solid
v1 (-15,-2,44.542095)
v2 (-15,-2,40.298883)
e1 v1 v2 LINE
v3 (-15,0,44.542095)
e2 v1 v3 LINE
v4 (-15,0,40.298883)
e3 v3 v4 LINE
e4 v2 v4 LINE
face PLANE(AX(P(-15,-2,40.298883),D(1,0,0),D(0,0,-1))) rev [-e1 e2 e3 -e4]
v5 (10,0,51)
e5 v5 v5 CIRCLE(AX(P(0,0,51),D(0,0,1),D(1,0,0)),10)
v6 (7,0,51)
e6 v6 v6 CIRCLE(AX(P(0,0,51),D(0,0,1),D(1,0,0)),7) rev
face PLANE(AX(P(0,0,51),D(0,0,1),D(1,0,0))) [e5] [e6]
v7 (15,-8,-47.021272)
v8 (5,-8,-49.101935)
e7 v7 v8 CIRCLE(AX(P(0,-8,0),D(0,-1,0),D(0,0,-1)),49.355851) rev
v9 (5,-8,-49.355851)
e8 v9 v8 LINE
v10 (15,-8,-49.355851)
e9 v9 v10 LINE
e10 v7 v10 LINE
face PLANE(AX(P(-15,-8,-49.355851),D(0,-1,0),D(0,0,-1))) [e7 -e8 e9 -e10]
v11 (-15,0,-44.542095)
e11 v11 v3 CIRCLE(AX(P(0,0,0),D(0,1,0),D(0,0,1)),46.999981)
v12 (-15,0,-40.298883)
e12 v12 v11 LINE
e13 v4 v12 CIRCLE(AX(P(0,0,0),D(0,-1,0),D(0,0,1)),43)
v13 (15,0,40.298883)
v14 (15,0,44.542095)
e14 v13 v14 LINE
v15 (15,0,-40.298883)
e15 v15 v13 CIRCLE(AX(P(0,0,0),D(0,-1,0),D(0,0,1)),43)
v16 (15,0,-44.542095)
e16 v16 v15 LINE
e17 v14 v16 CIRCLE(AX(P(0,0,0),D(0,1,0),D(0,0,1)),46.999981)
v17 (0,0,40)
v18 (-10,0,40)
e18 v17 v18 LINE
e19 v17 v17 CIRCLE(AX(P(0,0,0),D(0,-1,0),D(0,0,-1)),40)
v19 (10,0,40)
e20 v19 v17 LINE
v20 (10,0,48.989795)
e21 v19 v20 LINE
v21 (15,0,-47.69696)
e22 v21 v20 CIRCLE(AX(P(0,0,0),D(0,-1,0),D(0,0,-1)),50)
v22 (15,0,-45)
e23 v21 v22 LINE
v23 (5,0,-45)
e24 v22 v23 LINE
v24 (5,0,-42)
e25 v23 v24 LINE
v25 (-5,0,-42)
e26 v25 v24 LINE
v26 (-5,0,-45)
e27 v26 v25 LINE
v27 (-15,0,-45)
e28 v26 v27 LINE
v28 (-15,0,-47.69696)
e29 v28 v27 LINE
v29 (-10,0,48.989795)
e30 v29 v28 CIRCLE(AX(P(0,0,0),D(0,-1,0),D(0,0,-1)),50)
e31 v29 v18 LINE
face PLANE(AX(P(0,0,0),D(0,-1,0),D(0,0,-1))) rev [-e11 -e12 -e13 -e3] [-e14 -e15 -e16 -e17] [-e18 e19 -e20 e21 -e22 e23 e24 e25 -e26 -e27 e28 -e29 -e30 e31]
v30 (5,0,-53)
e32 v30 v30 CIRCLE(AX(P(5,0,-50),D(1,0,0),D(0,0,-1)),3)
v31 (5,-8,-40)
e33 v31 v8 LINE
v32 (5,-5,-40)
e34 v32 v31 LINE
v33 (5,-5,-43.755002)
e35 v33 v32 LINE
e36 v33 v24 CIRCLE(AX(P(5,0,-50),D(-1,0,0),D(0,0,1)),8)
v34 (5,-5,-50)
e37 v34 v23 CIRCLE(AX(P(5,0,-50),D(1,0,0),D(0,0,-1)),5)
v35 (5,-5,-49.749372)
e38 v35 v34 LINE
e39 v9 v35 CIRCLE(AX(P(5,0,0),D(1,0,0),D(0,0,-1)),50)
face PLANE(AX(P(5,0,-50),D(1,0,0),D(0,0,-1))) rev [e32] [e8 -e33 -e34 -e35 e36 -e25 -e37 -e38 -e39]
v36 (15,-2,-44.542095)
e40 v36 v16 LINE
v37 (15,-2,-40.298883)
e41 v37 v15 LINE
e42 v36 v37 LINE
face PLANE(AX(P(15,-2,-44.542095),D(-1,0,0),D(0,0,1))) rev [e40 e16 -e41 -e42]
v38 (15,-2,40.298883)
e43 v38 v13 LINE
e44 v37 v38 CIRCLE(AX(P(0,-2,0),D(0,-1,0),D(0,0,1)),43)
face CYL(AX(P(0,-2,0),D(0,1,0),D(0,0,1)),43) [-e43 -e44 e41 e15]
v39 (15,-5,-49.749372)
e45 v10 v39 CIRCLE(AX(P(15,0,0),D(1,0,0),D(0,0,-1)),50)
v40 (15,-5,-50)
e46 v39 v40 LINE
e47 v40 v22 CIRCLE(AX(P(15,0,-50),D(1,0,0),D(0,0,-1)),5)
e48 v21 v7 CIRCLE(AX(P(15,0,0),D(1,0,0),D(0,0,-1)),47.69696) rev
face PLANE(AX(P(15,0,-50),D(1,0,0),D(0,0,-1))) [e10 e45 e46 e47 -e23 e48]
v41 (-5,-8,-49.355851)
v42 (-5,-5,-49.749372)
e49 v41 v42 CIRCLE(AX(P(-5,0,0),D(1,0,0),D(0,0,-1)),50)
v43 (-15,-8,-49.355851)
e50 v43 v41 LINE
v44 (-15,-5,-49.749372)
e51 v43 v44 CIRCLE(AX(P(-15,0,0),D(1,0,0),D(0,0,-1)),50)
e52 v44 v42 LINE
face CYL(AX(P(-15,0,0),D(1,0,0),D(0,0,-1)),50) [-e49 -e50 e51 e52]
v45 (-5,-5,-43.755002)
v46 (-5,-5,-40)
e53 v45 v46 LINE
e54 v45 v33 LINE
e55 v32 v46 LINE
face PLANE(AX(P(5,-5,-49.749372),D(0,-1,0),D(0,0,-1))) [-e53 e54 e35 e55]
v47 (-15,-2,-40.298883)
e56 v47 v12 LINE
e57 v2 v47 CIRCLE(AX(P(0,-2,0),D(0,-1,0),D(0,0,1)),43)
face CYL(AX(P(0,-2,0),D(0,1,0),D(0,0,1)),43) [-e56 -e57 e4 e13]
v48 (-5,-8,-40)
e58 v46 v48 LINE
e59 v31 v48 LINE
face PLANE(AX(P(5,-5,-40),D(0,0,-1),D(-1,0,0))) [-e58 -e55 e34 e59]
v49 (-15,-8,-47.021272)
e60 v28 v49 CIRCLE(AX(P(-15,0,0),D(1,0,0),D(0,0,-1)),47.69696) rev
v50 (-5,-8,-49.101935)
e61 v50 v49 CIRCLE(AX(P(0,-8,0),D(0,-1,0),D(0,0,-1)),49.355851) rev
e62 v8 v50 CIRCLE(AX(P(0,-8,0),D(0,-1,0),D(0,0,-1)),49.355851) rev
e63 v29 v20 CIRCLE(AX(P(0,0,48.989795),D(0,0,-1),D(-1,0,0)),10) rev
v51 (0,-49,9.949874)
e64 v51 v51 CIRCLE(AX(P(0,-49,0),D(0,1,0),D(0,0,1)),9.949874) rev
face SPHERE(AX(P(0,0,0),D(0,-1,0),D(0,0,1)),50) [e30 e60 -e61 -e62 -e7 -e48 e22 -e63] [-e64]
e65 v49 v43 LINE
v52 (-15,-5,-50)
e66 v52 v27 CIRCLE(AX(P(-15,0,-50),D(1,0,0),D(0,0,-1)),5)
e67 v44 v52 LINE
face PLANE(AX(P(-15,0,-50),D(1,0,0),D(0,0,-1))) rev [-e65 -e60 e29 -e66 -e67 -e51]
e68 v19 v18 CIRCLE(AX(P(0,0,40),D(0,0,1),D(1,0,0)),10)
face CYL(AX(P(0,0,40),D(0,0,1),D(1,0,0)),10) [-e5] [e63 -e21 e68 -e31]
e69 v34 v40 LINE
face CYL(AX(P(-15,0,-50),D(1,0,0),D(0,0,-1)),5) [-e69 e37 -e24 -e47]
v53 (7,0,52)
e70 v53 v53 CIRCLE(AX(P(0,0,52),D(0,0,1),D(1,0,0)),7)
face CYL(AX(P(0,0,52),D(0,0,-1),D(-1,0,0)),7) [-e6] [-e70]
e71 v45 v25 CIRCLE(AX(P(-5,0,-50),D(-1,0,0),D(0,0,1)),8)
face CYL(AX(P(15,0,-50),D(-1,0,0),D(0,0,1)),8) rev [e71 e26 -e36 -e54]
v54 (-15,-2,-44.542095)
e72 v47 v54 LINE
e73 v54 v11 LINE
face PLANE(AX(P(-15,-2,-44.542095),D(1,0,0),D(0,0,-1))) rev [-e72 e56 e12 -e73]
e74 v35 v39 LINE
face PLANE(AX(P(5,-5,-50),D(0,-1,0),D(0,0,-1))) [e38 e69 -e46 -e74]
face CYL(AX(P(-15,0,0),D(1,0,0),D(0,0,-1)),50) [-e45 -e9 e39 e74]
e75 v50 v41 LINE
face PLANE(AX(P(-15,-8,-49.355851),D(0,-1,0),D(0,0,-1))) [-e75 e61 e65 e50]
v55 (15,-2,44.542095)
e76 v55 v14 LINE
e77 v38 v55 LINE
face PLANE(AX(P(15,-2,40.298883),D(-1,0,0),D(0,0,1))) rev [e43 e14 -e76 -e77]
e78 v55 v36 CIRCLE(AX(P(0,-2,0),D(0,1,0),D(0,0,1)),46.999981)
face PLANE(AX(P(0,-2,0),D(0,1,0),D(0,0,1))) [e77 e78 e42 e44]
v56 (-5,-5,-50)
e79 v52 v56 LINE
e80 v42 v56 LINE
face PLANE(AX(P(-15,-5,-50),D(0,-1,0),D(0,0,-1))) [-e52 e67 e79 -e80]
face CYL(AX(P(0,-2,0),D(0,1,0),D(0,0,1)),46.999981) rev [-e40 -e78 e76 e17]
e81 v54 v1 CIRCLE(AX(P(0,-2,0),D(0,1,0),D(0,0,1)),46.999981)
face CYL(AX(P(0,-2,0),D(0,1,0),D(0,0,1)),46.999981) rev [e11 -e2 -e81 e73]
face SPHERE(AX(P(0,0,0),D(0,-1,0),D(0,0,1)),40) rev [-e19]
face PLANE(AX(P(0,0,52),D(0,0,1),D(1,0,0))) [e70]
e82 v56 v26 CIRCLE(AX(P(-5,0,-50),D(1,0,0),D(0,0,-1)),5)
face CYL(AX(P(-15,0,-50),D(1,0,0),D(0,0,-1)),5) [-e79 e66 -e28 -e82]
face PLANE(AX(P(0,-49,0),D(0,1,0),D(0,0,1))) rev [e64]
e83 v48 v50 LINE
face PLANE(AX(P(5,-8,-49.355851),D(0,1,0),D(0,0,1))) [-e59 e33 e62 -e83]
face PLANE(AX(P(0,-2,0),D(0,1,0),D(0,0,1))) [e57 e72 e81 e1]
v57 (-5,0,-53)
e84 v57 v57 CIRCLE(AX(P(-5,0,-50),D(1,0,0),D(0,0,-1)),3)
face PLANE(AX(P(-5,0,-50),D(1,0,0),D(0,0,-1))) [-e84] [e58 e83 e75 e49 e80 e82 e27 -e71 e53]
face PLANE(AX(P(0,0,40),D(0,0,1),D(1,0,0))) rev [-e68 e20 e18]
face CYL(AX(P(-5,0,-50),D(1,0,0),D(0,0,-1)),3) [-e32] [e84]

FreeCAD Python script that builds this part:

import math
import FreeCAD as App
import Part
import Sketcher
Q = App.Units.Quantity


def add_polygon(sketch, points):
    """Adds a closed chain of lines whose ends are joined by coincident constraints."""
    first, n = sketch.GeometryCount, len(points)
    for a, b in zip(points, points[1:] + points[:1]):
        sketch.addGeometry(Part.LineSegment(App.Vector(*a, 0), App.Vector(*b, 0)), False)
    for i in range(n):
        sketch.addConstraint(Sketcher.Constraint("Coincident", first + i, 2, first + (i + 1) % n, 1))

doc = App.newDocument("Part")
body = doc.addObject("PartDesign::Body", "Body")

# Sketch on YZ plane
sketch1 = body.newObject("Sketcher::SketchObject", "Sketch")
sketch1.AttachmentSupport = (doc.getObject("YZ_Plane"), [""])
sketch1.MapMode = "FlatFace"
sketch1.addGeometry([
    Part.LineSegment(App.Vector(0, -50, 0), App.Vector(0, -40, 0)),
    Part.ArcOfCircle(Part.Circle(App.Vector(0, 0, 0), App.Vector(0, 0, 1), 40), math.radians(-180), math.radians(-90)),
    Part.LineSegment(App.Vector(-40, 0, 0), App.Vector(-50, 0, 0)),
    Part.ArcOfCircle(Part.Circle(App.Vector(0, 0, 0), App.Vector(0, 0, 1), 50), math.radians(-180), math.radians(-90)),
], False)
sketch1.addConstraint([
    Sketcher.Constraint("Coincident", 0, 2, 1, 2),
    Sketcher.Constraint("Coincident", 1, 1, 2, 1),
    Sketcher.Constraint("Coincident", 2, 2, 3, 1),
    Sketcher.Constraint("Coincident", 3, 2, 0, 1),
    Sketcher.Constraint("Vertical", 0),
    Sketcher.Constraint("Horizontal", 2),
    Sketcher.Constraint("Coincident", 1, 3, -1, 1),
    Sketcher.Constraint("Coincident", 3, 3, -1, 1),
    Sketcher.Constraint("PointOnObject", 0, 2, -2),
    Sketcher.Constraint("PointOnObject", 1, 1, -1),
    Sketcher.Constraint("Radius", 1, Q("40 mm")),
    Sketcher.Constraint("Radius", 3, Q("50 mm")),
])
revolution = body.newObject("PartDesign::Revolution", "Revolution")
revolution.Profile = sketch1
revolution.ReferenceAxis = (sketch1, ["H_Axis"])
revolution.Angle = 360

# Sketch on YZ plane
sketch2 = body.newObject("Sketcher::SketchObject", "Sketch001")
sketch2.AttachmentSupport = (doc.getObject("YZ_Plane"), [""])
sketch2.MapMode = "FlatFace"
sketch2.addGeometry(Part.Circle(App.Vector(0, -50, 0), App.Vector(0, 0, 1), 8), False)
sketch2.addConstraint([
    Sketcher.Constraint("PointOnObject", 0, 3, -2),
    Sketcher.Constraint("Diameter", 0, Q("16 mm")),
    Sketcher.Constraint("DistanceY", 0, 3, -1, 1, Q("50 mm")),
])
pocket1 = body.newObject("PartDesign::Pocket", "Pocket")
pocket1.Profile = sketch2
pocket1.Type = "TwoLengths"
pocket1.Length = 15
pocket1.Length2 = 15
pocket1.Reversed = True

# Sketch on YZ plane
sketch3 = body.newObject("Sketcher::SketchObject", "Sketch002")
sketch3.AttachmentSupport = (doc.getObject("YZ_Plane"), [""])
sketch3.MapMode = "FlatFace"
sketch3.addGeometry(Part.Circle(App.Vector(0, -50, 0), App.Vector(0, 0, 1), 5), False)
sketch3.addConstraint([
    Sketcher.Constraint("PointOnObject", 0, 3, -2),
    Sketcher.Constraint("Diameter", 0, Q("10 mm")),
    Sketcher.Constraint("DistanceY", 0, 3, -1, 1, Q("50 mm")),
])
pad1 = body.newObject("PartDesign::Pad", "Pad")
pad1.Profile = sketch3
pad1.Type = "TwoLengths"
pad1.Length = 15
pad1.Length2 = 15

# Sketch on YZ plane
sketch4 = body.newObject("Sketcher::SketchObject", "Sketch003")
sketch4.AttachmentSupport = (doc.getObject("YZ_Plane"), [""])
sketch4.MapMode = "FlatFace"
sketch4.addGeometry(Part.Circle(App.Vector(0, -50, 0), App.Vector(0, 0, 1), 5), False)
sketch4.addConstraint([
    Sketcher.Constraint("PointOnObject", 0, 3, -2),
    Sketcher.Constraint("Diameter", 0, Q("10 mm")),
    Sketcher.Constraint("DistanceY", 0, 3, -1, 1, Q("50 mm")),
])
pocket2 = body.newObject("PartDesign::Pocket", "Pocket001")
pocket2.Profile = sketch4
pocket2.Type = "TwoLengths"
pocket2.Length = 5
pocket2.Length2 = 5
pocket2.Reversed = True

# Sketch on YZ plane
sketch5 = body.newObject("Sketcher::SketchObject", "Sketch004")
sketch5.AttachmentSupport = (doc.getObject("YZ_Plane"), [""])
sketch5.MapMode = "FlatFace"
sketch5.addGeometry(Part.Circle(App.Vector(0, -50, 0), App.Vector(0, 0, 1), 3), False)
sketch5.addConstraint([
    Sketcher.Constraint("PointOnObject", 0, 3, -2),
    Sketcher.Constraint("Diameter", 0, Q("6 mm")),
    Sketcher.Constraint("DistanceY", 0, 3, -1, 1, Q("50 mm")),
])
pad2 = body.newObject("PartDesign::Pad", "Pad001")
pad2.Profile = sketch5
pad2.Type = "TwoLengths"
pad2.Length = 5
pad2.Length2 = 5

# Sketch on YZ plane
sketch6 = body.newObject("Sketcher::SketchObject", "Sketch005")
sketch6.AttachmentSupport = (doc.getObject("YZ_Plane"), [""])
sketch6.MapMode = "FlatFace"
sketch6.AttachmentOffset = App.Placement(App.Vector(0, 0, 15), App.Rotation())
add_polygon(sketch6, [(0, -40), (-5, -40), (-5, -50), (0, -50)])  # lines 0-3
sketch6.addConstraint([
    Sketcher.Constraint("Horizontal", 0),
    Sketcher.Constraint("Vertical", 1),
    Sketcher.Constraint("Horizontal", 2),
    Sketcher.Constraint("Vertical", 3),
    Sketcher.Constraint("PointOnObject", 2, 2, -2),
    Sketcher.Constraint("DistanceX", 0, 2, 0, 1, Q("5 mm")),
    Sketcher.Constraint("DistanceY", 1, 2, 1, 1, Q("10 mm")),
    Sketcher.Constraint("DistanceY", 0, 2, -1, 1, Q("40 mm")),
])
pad3 = body.newObject("PartDesign::Pad", "Pad002")
pad3.Profile = sketch6
pad3.Length = 10
pad3.Reversed = True
doc.recompute()

linearpattern = body.newObject("PartDesign::LinearPattern", "LinearPattern")
linearpattern.Originals = [pad3]
linearpattern.Direction = (doc.getObject("X_Axis"), [""])
linearpattern.Mode = "offset"
linearpattern.Offset = 20
linearpattern.Occurrences = 2
linearpattern.Reversed = True
body.Tip = linearpattern

# Sketch on XY plane
sketch7 = body.newObject("Sketcher::SketchObject", "Sketch006")
sketch7.AttachmentSupport = (doc.getObject("XY_Plane"), [""])
sketch7.MapMode = "FlatFace"
sketch7.AttachmentOffset = App.Placement(App.Vector(0, 0, 50), App.Rotation())
sketch7.addGeometry(Part.Circle(App.Vector(0, 0, 0), App.Vector(0, 0, 1), 10), False)
sketch7.addConstraint([
    Sketcher.Constraint("Coincident", 0, 3, -1, 1),
    Sketcher.Constraint("Diameter", 0, Q("20 mm")),
])
pad4 = body.newObject("PartDesign::Pad", "Pad003")
pad4.Profile = sketch7
pad4.Type = "TwoLengths"
pad4.Length = 1
pad4.Length2 = 10

# Sketch on XY plane
sketch8 = body.newObject("Sketcher::SketchObject", "Sketch007")
sketch8.AttachmentSupport = (doc.getObject("XY_Plane"), [""])
sketch8.MapMode = "FlatFace"
sketch8.AttachmentOffset = App.Placement(App.Vector(0, 0, 50), App.Rotation())
sketch8.addGeometry(Part.Circle(App.Vector(0, 0, 0), App.Vector(0, 0, 1), 7), False)
sketch8.addConstraint([
    Sketcher.Constraint("Coincident", 0, 3, -1, 1),
    Sketcher.Constraint("Diameter", 0, Q("14 mm")),
])
pad5 = body.newObject("PartDesign::Pad", "Pad004")
pad5.Profile = sketch8
pad5.Length = 2

# Sketch on XZ plane
sketch9 = body.newObject("Sketcher::SketchObject", "Sketch008")
sketch9.AttachmentSupport = (doc.getObject("XZ_Plane"), [""])
sketch9.MapMode = "FlatFace"
sketch9.addGeometry([
    Part.LineSegment(App.Vector(-15, -40.298883, 0), App.Vector(-15, -44.542095, 0)),  # 0
    Part.ArcOfCircle(Part.Circle(App.Vector(0, 0, 0), App.Vector(0, 0, 1), 46.999981), math.radians(108.611472), math.radians(251.388528)),  # 1
    Part.LineSegment(App.Vector(-15, 44.542095, 0), App.Vector(-15, 40.298883, 0)),  # 2
    Part.ArcOfCircle(Part.Circle(App.Vector(0, 0, 0), App.Vector(0, 0, 1), 43), math.radians(110.41621), math.radians(249.58379)),  # 3
    Part.LineSegment(App.Vector(15, -44.542095, 0), App.Vector(15, -40.298883, 0)),  # 4
    Part.ArcOfCircle(Part.Circle(App.Vector(0, 0, 0), App.Vector(0, 0, 1), 43), math.radians(-69.58379), math.radians(69.58379)),  # 5
    Part.LineSegment(App.Vector(15, 40.298883, 0), App.Vector(15, 44.542095, 0)),  # 6
    Part.ArcOfCircle(Part.Circle(App.Vector(0, 0, 0), App.Vector(0, 0, 1), 46.999981), math.radians(-71.388528), math.radians(71.388528)),  # 7
], False)
sketch9.addConstraint([
    Sketcher.Constraint("Coincident", 0, 2, 1, 2),
    Sketcher.Constraint("Coincident", 1, 1, 2, 1),
    Sketcher.Constraint("Coincident", 2, 2, 3, 1),
    Sketcher.Constraint("Coincident", 3, 2, 0, 1),
    Sketcher.Constraint("Coincident", 4, 2, 5, 1),
    Sketcher.Constraint("Coincident", 5, 2, 6, 1),
    Sketcher.Constraint("Coincident", 6, 2, 7, 2),
    Sketcher.Constraint("Coincident", 7, 1, 4, 1),
    Sketcher.Constraint("Vertical", 0),
    Sketcher.Constraint("Vertical", 2),
    Sketcher.Constraint("Vertical", 4),
    Sketcher.Constraint("Vertical", 6),
    Sketcher.Constraint("Coincident", 1, 3, -1, 1),
    Sketcher.Constraint("Coincident", 3, 3, -1, 1),
    Sketcher.Constraint("Coincident", 5, 3, -1, 1),
    Sketcher.Constraint("Coincident", 7, 3, -1, 1),
    Sketcher.Constraint("Equal", 3, 5),
    Sketcher.Constraint("Equal", 1, 7),
    Sketcher.Constraint("Horizontal", 3, 2, 4, 2),
    Sketcher.Constraint("Horizontal", 2, 2, 5, 2),
    Sketcher.Constraint("Vertical", 0, 2, 1, 1),
    Sketcher.Constraint("Radius", 3, Q("43 mm")),
    Sketcher.Constraint("DistanceX", 0, 2, -1, 1, Q("15 mm")),
    Sketcher.Constraint("Radius", 1, Q("46.999981 mm")),
])
pocket3 = body.newObject("PartDesign::Pocket", "Pocket002")
pocket3.Profile = sketch9
pocket3.Length = 2
pocket3.Reversed = True

# Sketch on YZ plane
sketch10 = body.newObject("Sketcher::SketchObject", "Sketch009")
sketch10.AttachmentSupport = (doc.getObject("YZ_Plane"), [""])
sketch10.MapMode = "FlatFace"
sketch10.addGeometry([
    Part.LineSegment(App.Vector(-5, -49.749372, 0), App.Vector(-5, -40, 0)),
    Part.LineSegment(App.Vector(-5, -40, 0), App.Vector(-8, -40, 0)),
    Part.LineSegment(App.Vector(-8, -40, 0), App.Vector(-8, -49.355851, 0)),
    Part.ArcOfCircle(Part.Circle(App.Vector(0, 0, 0), App.Vector(0, 0, 1), 50), math.radians(-99.206896), math.radians(-95.73917)),
], False)
sketch10.addConstraint([
    Sketcher.Constraint("Coincident", 0, 2, 1, 1),
    Sketcher.Constraint("Coincident", 1, 2, 2, 1),
    Sketcher.Constraint("Coincident", 2, 2, 3, 1),
    Sketcher.Constraint("Coincident", 3, 2, 0, 1),
    Sketcher.Constraint("Vertical", 0),
    Sketcher.Constraint("Horizontal", 1),
    Sketcher.Constraint("Vertical", 2),
    Sketcher.Constraint("Coincident", 3, 3, -1, 1),
    Sketcher.Constraint("Radius", 3, Q("50 mm")),
    Sketcher.Constraint("DistanceX", 1, 2, 1, 1, Q("3 mm")),
    Sketcher.Constraint("DistanceX", 0, 2, -1, 1, Q("5 mm")),
    Sketcher.Constraint("DistanceY", 0, 2, -1, 1, Q("40 mm")),
])
pad6 = body.newObject("PartDesign::Pad", "Pad005")
pad6.Profile = sketch10
pad6.Type = "TwoLengths"
pad6.Length = 15
pad6.Length2 = 15

# Sketch on YZ plane
sketch11 = body.newObject("Sketcher::SketchObject", "Sketch010")
sketch11.AttachmentSupport = (doc.getObject("YZ_Plane"), [""])
sketch11.MapMode = "FlatFace"
sketch11.addGeometry([
    Part.LineSegment(App.Vector(-5, -49.749372, 0), App.Vector(-5, -40, 0)),
    Part.LineSegment(App.Vector(-5, -40, 0), App.Vector(-8, -40, 0)),
    Part.LineSegment(App.Vector(-8, -40, 0), App.Vector(-8, -49.355851, 0)),
    Part.ArcOfCircle(Part.Circle(App.Vector(0, 0, 0), App.Vector(0, 0, 1), 50), math.radians(-99.206896), math.radians(-95.73917)),
], False)
sketch11.addConstraint([
    Sketcher.Constraint("Coincident", 0, 2, 1, 1),
    Sketcher.Constraint("Coincident", 1, 2, 2, 1),
    Sketcher.Constraint("Coincident", 2, 2, 3, 1),
    Sketcher.Constraint("Coincident", 3, 2, 0, 1),
    Sketcher.Constraint("Vertical", 0),
    Sketcher.Constraint("Horizontal", 1),
    Sketcher.Constraint("Vertical", 2),
    Sketcher.Constraint("Coincident", 3, 3, -1, 1),
    Sketcher.Constraint("Radius", 3, Q("50 mm")),
    Sketcher.Constraint("DistanceX", 1, 2, 1, 1, Q("3 mm")),
    Sketcher.Constraint("DistanceX", 0, 2, -1, 1, Q("5 mm")),
    Sketcher.Constraint("DistanceY", 0, 2, -1, 1, Q("40 mm")),
])
pocket4 = body.newObject("PartDesign::Pocket", "Pocket003")
pocket4.Profile = sketch11
pocket4.Type = "TwoLengths"
pocket4.Length = 5
pocket4.Length2 = 5
pocket4.Reversed = True

# Sketch on XZ plane
sketch12 = body.newObject("Sketcher::SketchObject", "Sketch011")
sketch12.AttachmentSupport = (doc.getObject("XZ_Plane"), [""])
sketch12.MapMode = "FlatFace"
sketch12.AttachmentOffset = App.Placement(App.Vector(0, 0, 50), App.Rotation())
sketch12.addGeometry(Part.Circle(App.Vector(0, 0, 0), App.Vector(0, 0, 1), 10), False)
sketch12.addConstraint([
    Sketcher.Constraint("Coincident", 0, 3, -1, 1),
    Sketcher.Constraint("Diameter", 0, Q("20 mm")),
])
pocket5 = body.newObject("PartDesign::Pocket", "Pocket004")
pocket5.Profile = sketch12
pocket5.Length = 1

doc.recompute()
